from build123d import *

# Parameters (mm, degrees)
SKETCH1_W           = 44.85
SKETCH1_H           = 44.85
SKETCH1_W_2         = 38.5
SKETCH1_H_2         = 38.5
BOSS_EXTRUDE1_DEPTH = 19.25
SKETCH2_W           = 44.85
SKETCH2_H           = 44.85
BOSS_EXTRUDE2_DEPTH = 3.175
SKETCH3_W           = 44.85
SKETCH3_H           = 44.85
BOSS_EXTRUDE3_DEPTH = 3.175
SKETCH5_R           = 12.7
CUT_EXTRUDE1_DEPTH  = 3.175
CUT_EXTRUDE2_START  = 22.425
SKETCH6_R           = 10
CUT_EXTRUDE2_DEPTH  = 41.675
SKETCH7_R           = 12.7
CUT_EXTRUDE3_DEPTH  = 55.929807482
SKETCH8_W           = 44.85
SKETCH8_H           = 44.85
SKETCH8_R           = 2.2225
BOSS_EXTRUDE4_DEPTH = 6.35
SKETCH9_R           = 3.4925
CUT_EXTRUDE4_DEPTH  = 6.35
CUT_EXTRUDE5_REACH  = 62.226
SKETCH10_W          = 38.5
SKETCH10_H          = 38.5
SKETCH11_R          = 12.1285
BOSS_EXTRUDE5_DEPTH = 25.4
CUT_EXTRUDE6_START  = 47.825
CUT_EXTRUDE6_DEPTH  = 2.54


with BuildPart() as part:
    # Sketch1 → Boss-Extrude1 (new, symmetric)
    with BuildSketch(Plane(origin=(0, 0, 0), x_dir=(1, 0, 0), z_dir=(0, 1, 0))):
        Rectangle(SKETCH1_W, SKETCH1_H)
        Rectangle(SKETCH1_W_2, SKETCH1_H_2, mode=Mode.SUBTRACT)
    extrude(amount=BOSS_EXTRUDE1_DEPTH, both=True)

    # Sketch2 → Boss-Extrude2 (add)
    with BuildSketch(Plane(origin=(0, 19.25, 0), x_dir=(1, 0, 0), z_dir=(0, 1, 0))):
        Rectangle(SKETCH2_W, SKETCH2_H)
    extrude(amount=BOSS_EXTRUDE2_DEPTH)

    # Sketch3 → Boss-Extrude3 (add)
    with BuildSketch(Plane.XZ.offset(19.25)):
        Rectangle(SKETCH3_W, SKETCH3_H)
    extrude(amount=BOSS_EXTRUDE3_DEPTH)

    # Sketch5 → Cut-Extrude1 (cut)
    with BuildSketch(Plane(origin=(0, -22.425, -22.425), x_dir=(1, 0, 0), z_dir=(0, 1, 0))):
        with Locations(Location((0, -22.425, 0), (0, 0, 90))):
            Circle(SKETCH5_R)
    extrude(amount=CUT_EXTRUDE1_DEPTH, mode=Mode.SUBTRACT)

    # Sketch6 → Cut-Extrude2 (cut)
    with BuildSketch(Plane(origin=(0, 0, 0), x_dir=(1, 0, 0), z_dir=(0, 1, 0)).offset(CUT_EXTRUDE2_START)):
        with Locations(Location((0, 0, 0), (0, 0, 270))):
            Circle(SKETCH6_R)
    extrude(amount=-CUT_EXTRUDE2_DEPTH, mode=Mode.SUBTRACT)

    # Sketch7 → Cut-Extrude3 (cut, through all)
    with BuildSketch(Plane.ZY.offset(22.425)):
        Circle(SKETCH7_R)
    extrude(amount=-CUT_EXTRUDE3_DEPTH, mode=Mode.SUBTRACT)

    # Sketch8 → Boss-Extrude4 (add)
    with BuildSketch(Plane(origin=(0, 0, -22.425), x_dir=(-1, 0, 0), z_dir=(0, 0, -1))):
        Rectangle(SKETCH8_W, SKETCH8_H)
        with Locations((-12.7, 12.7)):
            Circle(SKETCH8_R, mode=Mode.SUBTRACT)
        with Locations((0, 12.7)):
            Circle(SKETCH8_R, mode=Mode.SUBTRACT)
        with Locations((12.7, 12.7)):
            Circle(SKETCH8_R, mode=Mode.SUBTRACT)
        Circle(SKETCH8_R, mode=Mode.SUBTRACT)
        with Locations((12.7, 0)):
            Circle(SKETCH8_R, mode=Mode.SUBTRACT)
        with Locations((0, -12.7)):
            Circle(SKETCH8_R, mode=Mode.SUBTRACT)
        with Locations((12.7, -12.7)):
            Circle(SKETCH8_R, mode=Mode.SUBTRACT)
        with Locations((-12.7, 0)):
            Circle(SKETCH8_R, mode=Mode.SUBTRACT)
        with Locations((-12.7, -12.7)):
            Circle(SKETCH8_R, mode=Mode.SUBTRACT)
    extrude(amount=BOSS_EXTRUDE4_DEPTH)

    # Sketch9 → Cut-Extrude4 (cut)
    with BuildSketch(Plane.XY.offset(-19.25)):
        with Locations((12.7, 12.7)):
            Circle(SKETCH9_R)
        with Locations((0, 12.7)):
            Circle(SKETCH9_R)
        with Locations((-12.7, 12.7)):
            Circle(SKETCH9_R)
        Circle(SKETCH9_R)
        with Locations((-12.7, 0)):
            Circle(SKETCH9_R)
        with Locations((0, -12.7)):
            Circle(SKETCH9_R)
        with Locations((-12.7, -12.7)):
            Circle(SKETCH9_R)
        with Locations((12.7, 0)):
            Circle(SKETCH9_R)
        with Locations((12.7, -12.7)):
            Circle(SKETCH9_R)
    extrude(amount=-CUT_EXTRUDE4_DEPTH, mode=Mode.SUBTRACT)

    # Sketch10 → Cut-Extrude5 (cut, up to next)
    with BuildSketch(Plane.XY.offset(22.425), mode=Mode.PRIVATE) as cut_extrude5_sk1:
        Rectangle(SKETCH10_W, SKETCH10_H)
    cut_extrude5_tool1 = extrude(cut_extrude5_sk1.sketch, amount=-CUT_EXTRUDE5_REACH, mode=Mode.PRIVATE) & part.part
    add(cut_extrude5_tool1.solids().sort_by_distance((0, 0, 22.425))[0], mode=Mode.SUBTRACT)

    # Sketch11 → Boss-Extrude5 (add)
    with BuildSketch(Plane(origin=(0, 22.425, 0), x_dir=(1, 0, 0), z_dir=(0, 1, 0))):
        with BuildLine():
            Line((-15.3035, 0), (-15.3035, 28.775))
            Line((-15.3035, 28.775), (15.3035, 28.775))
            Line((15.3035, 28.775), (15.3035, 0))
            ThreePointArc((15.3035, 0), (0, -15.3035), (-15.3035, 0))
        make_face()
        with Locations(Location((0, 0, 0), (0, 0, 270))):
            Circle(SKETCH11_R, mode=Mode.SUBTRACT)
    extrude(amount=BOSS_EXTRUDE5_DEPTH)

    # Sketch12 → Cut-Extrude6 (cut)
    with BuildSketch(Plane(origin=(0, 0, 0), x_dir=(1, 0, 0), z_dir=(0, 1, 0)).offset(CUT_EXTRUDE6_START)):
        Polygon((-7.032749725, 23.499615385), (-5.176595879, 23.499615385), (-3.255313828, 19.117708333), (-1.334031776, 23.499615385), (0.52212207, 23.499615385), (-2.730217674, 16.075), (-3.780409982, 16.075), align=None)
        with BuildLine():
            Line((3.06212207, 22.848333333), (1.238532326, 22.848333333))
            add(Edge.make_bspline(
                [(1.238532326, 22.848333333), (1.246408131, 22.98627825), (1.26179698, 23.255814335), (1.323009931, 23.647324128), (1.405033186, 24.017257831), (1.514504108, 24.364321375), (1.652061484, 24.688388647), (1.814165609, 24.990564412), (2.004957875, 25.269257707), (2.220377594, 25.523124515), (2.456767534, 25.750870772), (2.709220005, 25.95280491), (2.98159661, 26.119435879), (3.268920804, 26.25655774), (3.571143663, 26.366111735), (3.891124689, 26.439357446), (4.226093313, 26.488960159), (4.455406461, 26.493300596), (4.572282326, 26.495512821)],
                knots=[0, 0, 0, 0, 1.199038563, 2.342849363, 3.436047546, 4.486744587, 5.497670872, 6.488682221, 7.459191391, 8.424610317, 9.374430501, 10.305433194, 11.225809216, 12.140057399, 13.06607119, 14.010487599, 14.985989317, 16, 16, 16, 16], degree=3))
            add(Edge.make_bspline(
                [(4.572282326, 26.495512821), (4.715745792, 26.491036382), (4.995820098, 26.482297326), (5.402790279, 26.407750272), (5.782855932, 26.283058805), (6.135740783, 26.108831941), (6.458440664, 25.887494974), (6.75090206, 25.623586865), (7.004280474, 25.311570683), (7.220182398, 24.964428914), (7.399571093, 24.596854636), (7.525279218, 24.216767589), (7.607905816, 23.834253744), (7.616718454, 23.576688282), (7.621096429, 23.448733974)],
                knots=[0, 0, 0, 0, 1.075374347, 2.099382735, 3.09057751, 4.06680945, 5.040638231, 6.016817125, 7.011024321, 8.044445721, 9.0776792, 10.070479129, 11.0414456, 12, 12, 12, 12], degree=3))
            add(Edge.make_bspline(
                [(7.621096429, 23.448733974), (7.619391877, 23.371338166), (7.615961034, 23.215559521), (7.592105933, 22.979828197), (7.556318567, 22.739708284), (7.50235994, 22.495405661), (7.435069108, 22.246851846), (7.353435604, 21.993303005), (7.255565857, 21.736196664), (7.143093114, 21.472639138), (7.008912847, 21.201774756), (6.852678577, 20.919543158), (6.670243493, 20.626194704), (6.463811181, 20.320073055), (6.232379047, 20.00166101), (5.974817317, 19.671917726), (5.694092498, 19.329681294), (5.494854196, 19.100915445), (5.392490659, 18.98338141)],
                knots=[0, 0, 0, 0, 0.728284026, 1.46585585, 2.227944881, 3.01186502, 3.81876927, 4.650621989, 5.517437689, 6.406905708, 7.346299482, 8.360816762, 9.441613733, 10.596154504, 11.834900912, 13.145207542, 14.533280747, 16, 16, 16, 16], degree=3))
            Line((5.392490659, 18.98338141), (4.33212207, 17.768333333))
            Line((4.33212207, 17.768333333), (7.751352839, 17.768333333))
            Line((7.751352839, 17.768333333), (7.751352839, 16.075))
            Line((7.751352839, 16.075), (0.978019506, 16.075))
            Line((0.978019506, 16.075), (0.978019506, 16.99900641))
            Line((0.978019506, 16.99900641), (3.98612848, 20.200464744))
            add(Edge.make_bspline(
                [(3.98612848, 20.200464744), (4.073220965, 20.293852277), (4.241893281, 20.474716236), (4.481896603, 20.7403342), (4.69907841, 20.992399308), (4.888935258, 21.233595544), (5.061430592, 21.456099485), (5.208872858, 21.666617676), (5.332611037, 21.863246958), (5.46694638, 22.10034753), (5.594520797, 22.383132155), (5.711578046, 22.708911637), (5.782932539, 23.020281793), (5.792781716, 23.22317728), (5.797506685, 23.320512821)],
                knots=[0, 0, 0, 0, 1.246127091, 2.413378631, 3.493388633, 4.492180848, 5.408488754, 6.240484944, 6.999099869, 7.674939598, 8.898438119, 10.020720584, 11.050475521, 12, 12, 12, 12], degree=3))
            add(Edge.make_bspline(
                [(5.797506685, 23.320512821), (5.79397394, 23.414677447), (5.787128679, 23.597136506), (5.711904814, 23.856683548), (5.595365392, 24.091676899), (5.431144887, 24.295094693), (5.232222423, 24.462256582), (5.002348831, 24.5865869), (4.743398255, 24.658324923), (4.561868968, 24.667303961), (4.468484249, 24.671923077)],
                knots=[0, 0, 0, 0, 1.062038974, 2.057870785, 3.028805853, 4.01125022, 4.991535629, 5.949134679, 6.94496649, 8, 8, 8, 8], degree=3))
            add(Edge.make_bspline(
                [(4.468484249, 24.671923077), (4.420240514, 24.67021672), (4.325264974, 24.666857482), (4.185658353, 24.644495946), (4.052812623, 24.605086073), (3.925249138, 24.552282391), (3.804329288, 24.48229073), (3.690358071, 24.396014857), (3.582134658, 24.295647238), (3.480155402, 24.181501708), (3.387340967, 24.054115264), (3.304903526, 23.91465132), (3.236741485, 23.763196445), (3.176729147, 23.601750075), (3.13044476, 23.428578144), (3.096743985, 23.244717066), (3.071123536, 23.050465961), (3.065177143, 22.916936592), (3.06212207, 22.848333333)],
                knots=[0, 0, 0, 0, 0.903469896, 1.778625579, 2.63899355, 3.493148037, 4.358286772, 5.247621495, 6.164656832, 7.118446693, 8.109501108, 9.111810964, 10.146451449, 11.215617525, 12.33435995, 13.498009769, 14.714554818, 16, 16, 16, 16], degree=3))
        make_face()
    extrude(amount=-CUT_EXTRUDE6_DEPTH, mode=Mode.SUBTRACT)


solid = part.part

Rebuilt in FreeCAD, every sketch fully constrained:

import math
import FreeCAD as App
import Part
import Sketcher
from FreeCAD import Vector
Q = App.Units.Quantity

doc = App.newDocument("Part")
body = doc.addObject("PartDesign::Body", "Body")

# Sketch on XZ plane
sketch1 = body.newObject("Sketcher::SketchObject", "Sketch")
sketch1.AttachmentSupport = (doc.getObject("XZ_Plane"), [""])
sketch1.MapMode = "FlatFace"
sketch1.addGeometry(Part.LineSegment(Vector(-22.425, -22.425, 0), Vector(-22.425, 22.425, 0)), False)
sketch1.addGeometry(Part.LineSegment(Vector(-22.425, 22.425, 0), Vector(22.425, 22.425, 0)), False)
sketch1.addGeometry(Part.LineSegment(Vector(22.425, 22.425, 0), Vector(22.425, -22.425, 0)), False)
sketch1.addGeometry(Part.LineSegment(Vector(22.425, -22.425, 0), Vector(-22.425, -22.425, 0)), False)
sketch1.addGeometry(Part.LineSegment(Vector(19.25, 19.25, 0), Vector(-19.25, 19.25, 0)), False)
sketch1.addGeometry(Part.LineSegment(Vector(-19.25, 19.25, 0), Vector(-19.25, -19.25, 0)), False)
sketch1.addGeometry(Part.LineSegment(Vector(-19.25, -19.25, 0), Vector(19.25, -19.25, 0)), False)
sketch1.addGeometry(Part.LineSegment(Vector(19.25, -19.25, 0), Vector(19.25, 19.25, 0)), False)
sketch1.addConstraint(Sketcher.Constraint("Coincident", 0, 2, 1, 1))
sketch1.addConstraint(Sketcher.Constraint("Coincident", 1, 2, 2, 1))
sketch1.addConstraint(Sketcher.Constraint("Coincident", 2, 2, 3, 1))
sketch1.addConstraint(Sketcher.Constraint("Coincident", 3, 2, 0, 1))
sketch1.addConstraint(Sketcher.Constraint("Coincident", 4, 2, 5, 1))
sketch1.addConstraint(Sketcher.Constraint("Coincident", 5, 2, 6, 1))
sketch1.addConstraint(Sketcher.Constraint("Coincident", 6, 2, 7, 1))
sketch1.addConstraint(Sketcher.Constraint("Coincident", 7, 2, 4, 1))
sketch1.addConstraint(Sketcher.Constraint("Vertical", 0))
sketch1.addConstraint(Sketcher.Constraint("Horizontal", 1))
sketch1.addConstraint(Sketcher.Constraint("Vertical", 2))
sketch1.addConstraint(Sketcher.Constraint("Horizontal", 3))
sketch1.addConstraint(Sketcher.Constraint("Horizontal", 4))
sketch1.addConstraint(Sketcher.Constraint("Vertical", 5))
sketch1.addConstraint(Sketcher.Constraint("Horizontal", 6))
sketch1.addConstraint(Sketcher.Constraint("Vertical", 7))
sketch1.addConstraint(Sketcher.Constraint("Symmetric", 0, 2, 2, 2, -1, 1))
sketch1.addConstraint(Sketcher.Constraint("Symmetric", 4, 2, 6, 2, -1, 1))
sketch1.addConstraint(Sketcher.Constraint("Equal", 3, 0))
sketch1.addConstraint(Sketcher.Constraint("Equal", 6, 5))
sketch1.addConstraint(Sketcher.Constraint("DistanceX", 0, 2, 4, 2, Q("0.125 in")))
sketch1.addConstraint(Sketcher.Constraint("DistanceX", 1, 1, 1, 2, 44.85))
pad1 = body.newObject("PartDesign::Pad", "Pad")
pad1.Profile = sketch1
pad1.Length = 38.5
pad1.Midplane = True

# Sketch on XZ plane
sketch2 = body.newObject("Sketcher::SketchObject", "Sketch001")
sketch2.AttachmentSupport = (doc.getObject("XZ_Plane"), [""])
sketch2.MapMode = "FlatFace"
sketch2.AttachmentOffset = App.Placement(Vector(0, 0, -19.25), App.Rotation())
sketch2.addGeometry(Part.LineSegment(Vector(-22.425, -22.425, 0), Vector(-22.425, 22.425, 0)), False)
sketch2.addGeometry(Part.LineSegment(Vector(-22.425, 22.425, 0), Vector(22.425, 22.425, 0)), False)
sketch2.addGeometry(Part.LineSegment(Vector(22.425, 22.425, 0), Vector(22.425, -22.425, 0)), False)
sketch2.addGeometry(Part.LineSegment(Vector(22.425, -22.425, 0), Vector(-22.425, -22.425, 0)), False)
sketch2.addConstraint(Sketcher.Constraint("Coincident", 0, 2, 1, 1))
sketch2.addConstraint(Sketcher.Constraint("Coincident", 1, 2, 2, 1))
sketch2.addConstraint(Sketcher.Constraint("Coincident", 2, 2, 3, 1))
sketch2.addConstraint(Sketcher.Constraint("Coincident", 3, 2, 0, 1))
sketch2.addConstraint(Sketcher.Constraint("Vertical", 0))
sketch2.addConstraint(Sketcher.Constraint("Horizontal", 1))
sketch2.addConstraint(Sketcher.Constraint("Vertical", 2))
sketch2.addConstraint(Sketcher.Constraint("Horizontal", 3))
sketch2.addConstraint(Sketcher.Constraint("Symmetric", 0, 2, 2, 2, -1, 1))
sketch2.addConstraint(Sketcher.Constraint("Equal", 3, 0))
sketch2.addConstraint(Sketcher.Constraint("DistanceX", 1, 1, 1, 2, 44.85))
pad2 = body.newObject("PartDesign::Pad", "Pad001")
pad2.Profile = sketch2
pad2.Length = Q("0.125 in")
pad2.Reversed = True

# Sketch on XZ plane
sketch3 = body.newObject("Sketcher::SketchObject", "Sketch002")
sketch3.AttachmentSupport = (doc.getObject("XZ_Plane"), [""])
sketch3.MapMode = "FlatFace"
sketch3.AttachmentOffset = App.Placement(Vector(0, 0, 19.25), App.Rotation())
sketch3.addGeometry(Part.LineSegment(Vector(-22.425, 22.425, 0), Vector(-22.425, -22.425, 0)), False)
sketch3.addGeometry(Part.LineSegment(Vector(-22.425, -22.425, 0), Vector(22.425, -22.425, 0)), False)
sketch3.addGeometry(Part.LineSegment(Vector(22.425, -22.425, 0), Vector(22.425, 22.425, 0)), False)
sketch3.addGeometry(Part.LineSegment(Vector(22.425, 22.425, 0), Vector(-22.425, 22.425, 0)), False)
sketch3.addConstraint(Sketcher.Constraint("Coincident", 0, 2, 1, 1))
sketch3.addConstraint(Sketcher.Constraint("Coincident", 1, 2, 2, 1))
sketch3.addConstraint(Sketcher.Constraint("Coincident", 2, 2, 3, 1))
sketch3.addConstraint(Sketcher.Constraint("Coincident", 3, 2, 0, 1))
sketch3.addConstraint(Sketcher.Constraint("Vertical", 0))
sketch3.addConstraint(Sketcher.Constraint("Horizontal", 1))
sketch3.addConstraint(Sketcher.Constraint("Vertical", 2))
sketch3.addConstraint(Sketcher.Constraint("Horizontal", 3))
sketch3.addConstraint(Sketcher.Constraint("Symmetric", 0, 2, 2, 2, -1, 1))
sketch3.addConstraint(Sketcher.Constraint("Equal", 3, 0))
sketch3.addConstraint(Sketcher.Constraint("DistanceX", 1, 1, 1, 2, 44.85))
pad3 = body.newObject("PartDesign::Pad", "Pad002")
pad3.Profile = sketch3
pad3.Length = Q("0.125 in")

# Sketch on XZ plane
sketch4 = body.newObject("Sketcher::SketchObject", "Sketch003")
sketch4.AttachmentSupport = (doc.getObject("XZ_Plane"), [""])
sketch4.MapMode = "FlatFace"
sketch4.AttachmentOffset = App.Placement(Vector(0, 0, 22.425), App.Rotation())
sketch4.addGeometry(Part.Circle(Vector(0, 0, 0), Vector(0, 0, 1), 12.7), False)
sketch4.addConstraint(Sketcher.Constraint("Coincident", 0, 3, -1, 1))
sketch4.addConstraint(Sketcher.Constraint("Diameter", 0, Q("1 in")))
pocket1 = body.newObject("PartDesign::Pocket", "Pocket")
pocket1.Profile = sketch4
pocket1.Length = Q("0.125 in")

# Sketch on XZ plane
sketch5 = body.newObject("Sketcher::SketchObject", "Sketch004")
sketch5.AttachmentSupport = (doc.getObject("XZ_Plane"), [""])
sketch5.MapMode = "FlatFace"
sketch5.AttachmentOffset = App.Placement(Vector(0, 0, -22.425), App.Rotation())
sketch5.addGeometry(Part.Circle(Vector(0, 0, 0), Vector(0, 0, 1), 10), False)
sketch5.addConstraint(Sketcher.Constraint("Coincident", 0, 3, -1, 1))
sketch5.addConstraint(Sketcher.Constraint("Diameter", 0, 20.0))
pocket2 = body.newObject("PartDesign::Pocket", "Pocket001")
pocket2.Profile = sketch5
pocket2.Length = 41.675
pocket2.Reversed = True

# Sketch on YZ plane
sketch6 = body.newObject("Sketcher::SketchObject", "Sketch005")
sketch6.AttachmentSupport = (doc.getObject("YZ_Plane"), [""])
sketch6.MapMode = "FlatFace"
sketch6.AttachmentOffset = App.Placement(Vector(0, 0, -22.425), App.Rotation())
sketch6.addGeometry(Part.Circle(Vector(0, 0, 0), Vector(0, 0, 1), 12.7), False)
sketch6.addConstraint(Sketcher.Constraint("Coincident", 0, 3, -1, 1))
sketch6.addConstraint(Sketcher.Constraint("Diameter", 0, Q("1 in")))
pocket3 = body.newObject("PartDesign::Pocket", "Pocket002")
pocket3.Profile = sketch6
pocket3.Type = "ThroughAll"
pocket3.Reversed = True

# Sketch on XY plane
sketch7 = body.newObject("Sketcher::SketchObject", "Sketch006")
sketch7.AttachmentSupport = (doc.getObject("XY_Plane"), [""])
sketch7.MapMode = "FlatFace"
sketch7.AttachmentOffset = App.Placement(Vector(0, 0, -22.425), App.Rotation())
sketch7.addGeometry(Part.LineSegment(Vector(22.425, 22.425, 0), Vector(22.425, -22.425, 0)), False)
sketch7.addGeometry(Part.LineSegment(Vector(22.425, -22.425, 0), Vector(-22.425, -22.425, 0)), False)
sketch7.addGeometry(Part.LineSegment(Vector(-22.425, -22.425, 0), Vector(-22.425, 22.425, 0)), False)
sketch7.addGeometry(Part.LineSegment(Vector(-22.425, 22.425, 0), Vector(22.425, 22.425, 0)), False)
sketch7.addGeometry(Part.Circle(Vector(12.7, -12.7, 0), Vector(0, 0, 1), 2.2225), False)
sketch7.addGeometry(Part.Circle(Vector(0, -12.7, 0), Vector(0, 0, 1), 2.2225), False)
sketch7.addGeometry(Part.Circle(Vector(-12.7, -12.7, 0), Vector(0, 0, 1), 2.2225), False)
sketch7.addGeometry(Part.Circle(Vector(12.7, 0, 0), Vector(0, 0, 1), 2.2225), False)
sketch7.addGeometry(Part.Circle(Vector(12.7, 12.7, 0), Vector(0, 0, 1), 2.2225), False)
sketch7.addGeometry(Part.Circle(Vector(0, 0, 0), Vector(0, 0, 1), 2.2225), False)
sketch7.addGeometry(Part.Circle(Vector(-12.7, 0, 0), Vector(0, 0, 1), 2.2225), False)
sketch7.addGeometry(Part.Circle(Vector(0, 12.7, 0), Vector(0, 0, 1), 2.2225), False)
sketch7.addGeometry(Part.Circle(Vector(-12.7, 12.7, 0), Vector(0, 0, 1), 2.2225), False)
sketch7.addConstraint(Sketcher.Constraint("Coincident", 0, 2, 1, 1))
sketch7.addConstraint(Sketcher.Constraint("Coincident", 1, 2, 2, 1))
sketch7.addConstraint(Sketcher.Constraint("Coincident", 2, 2, 3, 1))
sketch7.addConstraint(Sketcher.Constraint("Coincident", 3, 2, 0, 1))
sketch7.addConstraint(Sketcher.Constraint("Vertical", 0))
sketch7.addConstraint(Sketcher.Constraint("Horizontal", 1))
sketch7.addConstraint(Sketcher.Constraint("Vertical", 2))
sketch7.addConstraint(Sketcher.Constraint("Horizontal", 3))
sketch7.addConstraint(Sketcher.Constraint("Coincident", 9, 3, -1, 1))
sketch7.addConstraint(Sketcher.Constraint("Equal", 4, 5))
sketch7.addConstraint(Sketcher.Constraint("Equal", 5, 6))
sketch7.addConstraint(Sketcher.Constraint("Equal", 6, 7))
sketch7.addConstraint(Sketcher.Constraint("Equal", 7, 8))
sketch7.addConstraint(Sketcher.Constraint("Equal", 8, 9))
sketch7.addConstraint(Sketcher.Constraint("Equal", 9, 10))
sketch7.addConstraint(Sketcher.Constraint("Equal", 10, 11))
sketch7.addConstraint(Sketcher.Constraint("Equal", 11, 12))
sketch7.addConstraint(Sketcher.Constraint("Symmetric", 6, 3, 8, 3, -1, 1))
sketch7.addConstraint(Sketcher.Constraint("Symmetric", 7, 3, 10, 3, -1, 1))
sketch7.addConstraint(Sketcher.Constraint("Symmetric", 5, 3, 11, 3, -1, 1))
sketch7.addConstraint(Sketcher.Constraint("Symmetric", 4, 3, 12, 3, -1, 1))
sketch7.addConstraint(Sketcher.Constraint("Symmetric", 0, 2, 2, 2, -1, 1))
sketch7.addConstraint(Sketcher.Constraint("Symmetric", 4, 3, 6, 3, -2))
sketch7.addConstraint(Sketcher.Constraint("PointOnObject", 5, 3, -2))
sketch7.addConstraint(Sketcher.Constraint("PointOnObject", 7, 3, -1))
sketch7.addConstraint(Sketcher.Constraint("Horizontal", 4, 3, 5, 3))
sketch7.addConstraint(Sketcher.Constraint("Vertical", 4, 3, 7, 3))
sketch7.addConstraint(Sketcher.Constraint("Equal", 3, 0))
sketch7.addConstraint(Sketcher.Constraint("Diameter", 4, Q("0.175 in")))
sketch7.addConstraint(Sketcher.Constraint("DistanceX", 6, 3, 4, 3, Q("1 in")))
sketch7.addConstraint(Sketcher.Constraint("DistanceY", 4, 3, 8, 3, Q("1 in")))
sketch7.addConstraint(Sketcher.Constraint("DistanceX", 1, 2, 1, 1, 44.85))
pad4 = body.newObject("PartDesign::Pad", "Pad003")
pad4.Profile = sketch7
pad4.Length = Q("0.25 in")
pad4.Reversed = True

# Sketch on XY plane
sketch8 = body.newObject("Sketcher::SketchObject", "Sketch007")
sketch8.AttachmentSupport = (doc.getObject("XY_Plane"), [""])
sketch8.MapMode = "FlatFace"
sketch8.AttachmentOffset = App.Placement(Vector(0, 0, -19.25), App.Rotation())
sketch8.addGeometry(Part.Circle(Vector(12.7, 12.7, 0), Vector(0, 0, 1), 3.4925), False)
sketch8.addGeometry(Part.Circle(Vector(0, 12.7, 0), Vector(0, 0, 1), 3.4925), False)
sketch8.addGeometry(Part.Circle(Vector(-12.7, 12.7, 0), Vector(0, 0, 1), 3.4925), False)
sketch8.addGeometry(Part.Circle(Vector(0, 0, 0), Vector(0, 0, 1), 3.4925), False)
sketch8.addGeometry(Part.Circle(Vector(-12.7, 0, 0), Vector(0, 0, 1), 3.4925), False)
sketch8.addGeometry(Part.Circle(Vector(0, -12.7, 0), Vector(0, 0, 1), 3.4925), False)
sketch8.addGeometry(Part.Circle(Vector(-12.7, -12.7, 0), Vector(0, 0, 1), 3.4925), False)
sketch8.addGeometry(Part.Circle(Vector(12.7, 0, 0), Vector(0, 0, 1), 3.4925), False)
sketch8.addGeometry(Part.Circle(Vector(12.7, -12.7, 0), Vector(0, 0, 1), 3.4925), False)
sketch8.addConstraint(Sketcher.Constraint("Coincident", 3, 3, -1, 1))
sketch8.addConstraint(Sketcher.Constraint("Equal", 0, 1))
sketch8.addConstraint(Sketcher.Constraint("Equal", 1, 2))
sketch8.addConstraint(Sketcher.Constraint("Equal", 2, 3))
sketch8.addConstraint(Sketcher.Constraint("Equal", 3, 4))
sketch8.addConstraint(Sketcher.Constraint("Equal", 4, 5))
sketch8.addConstraint(Sketcher.Constraint("Equal", 5, 6))
sketch8.addConstraint(Sketcher.Constraint("Equal", 6, 7))
sketch8.addConstraint(Sketcher.Constraint("Equal", 7, 8))
sketch8.addConstraint(Sketcher.Constraint("Symmetric", 1, 3, 5, 3, -1, 1))
sketch8.addConstraint(Sketcher.Constraint("Symmetric", 0, 3, 6, 3, -1, 1))
sketch8.addConstraint(Sketcher.Constraint("Symmetric", 4, 3, 7, 3, -1, 1))
sketch8.addConstraint(Sketcher.Constraint("Symmetric", 2, 3, 8, 3, -1, 1))
sketch8.addConstraint(Sketcher.Constraint("Symmetric", 0, 3, 2, 3, -2))
sketch8.addConstraint(Sketcher.Constraint("PointOnObject", 1, 3, -2))
sketch8.addConstraint(Sketcher.Constraint("PointOnObject", 4, 3, -1))
sketch8.addConstraint(Sketcher.Constraint("Horizontal", 0, 3, 1, 3))
sketch8.addConstraint(Sketcher.Constraint("Vertical", 2, 3, 4, 3))
sketch8.addConstraint(Sketcher.Constraint("Diameter", 0, Q("0.275 in")))
sketch8.addConstraint(Sketcher.Constraint("DistanceX", 2, 3, 0, 3, Q("1 in")))
sketch8.addConstraint(Sketcher.Constraint("DistanceY", 5, 3, 1, 3, Q("1 in")))
pocket4 = body.newObject("PartDesign::Pocket", "Pocket003")
pocket4.Profile = sketch8
pocket4.Length = Q("0.25 in")

# Sketch on XY plane
sketch9 = body.newObject("Sketcher::SketchObject", "Sketch008")
sketch9.AttachmentSupport = (doc.getObject("XY_Plane"), [""])
sketch9.MapMode = "FlatFace"
sketch9.AttachmentOffset = App.Placement(Vector(0, 0, 22.425), App.Rotation())
sketch9.addGeometry(Part.LineSegment(Vector(-19.25, 19.25, 0), Vector(-19.25, -19.25, 0)), False)
sketch9.addGeometry(Part.LineSegment(Vector(-19.25, -19.25, 0), Vector(19.25, -19.25, 0)), False)
sketch9.addGeometry(Part.LineSegment(Vector(19.25, -19.25, 0), Vector(19.25, 19.25, 0)), False)
sketch9.addGeometry(Part.LineSegment(Vector(19.25, 19.25, 0), Vector(-19.25, 19.25, 0)), False)
sketch9.addConstraint(Sketcher.Constraint("Coincident", 0, 2, 1, 1))
sketch9.addConstraint(Sketcher.Constraint("Coincident", 1, 2, 2, 1))
sketch9.addConstraint(Sketcher.Constraint("Coincident", 2, 2, 3, 1))
sketch9.addConstraint(Sketcher.Constraint("Coincident", 3, 2, 0, 1))
sketch9.addConstraint(Sketcher.Constraint("Vertical", 0))
sketch9.addConstraint(Sketcher.Constraint("Horizontal", 1))
sketch9.addConstraint(Sketcher.Constraint("Vertical", 2))
sketch9.addConstraint(Sketcher.Constraint("Horizontal", 3))
sketch9.addConstraint(Sketcher.Constraint("Symmetric", 0, 2, 2, 2, -1, 1))
sketch9.addConstraint(Sketcher.Constraint("Equal", 3, 0))
sketch9.addConstraint(Sketcher.Constraint("DistanceX", 1, 1, 1, 2, 38.5))
pocket5 = body.newObject("PartDesign::Pocket", "Pocket004")
pocket5.Profile = sketch9
pocket5.Type = "UpToFirst"

# Sketch on XZ plane
sketch10 = body.newObject("Sketcher::SketchObject", "Sketch009")
sketch10.AttachmentSupport = (doc.getObject("XZ_Plane"), [""])
sketch10.MapMode = "FlatFace"
sketch10.AttachmentOffset = App.Placement(Vector(0, 0, -22.425), App.Rotation())
sketch10.addGeometry(Part.LineSegment(Vector(-15.3035, -28.775, 0), Vector(-15.3035, 0, 0)), False)
sketch10.addGeometry(Part.ArcOfCircle(Part.Circle(Vector(0, 0, 0), Vector(0, 0, 1), 15.3035), math.radians(0), math.radians(180)), False)
sketch10.addGeometry(Part.LineSegment(Vector(15.3035, 0, 0), Vector(15.3035, -28.775, 0)), False)
sketch10.addGeometry(Part.LineSegment(Vector(15.3035, -28.775, 0), Vector(-15.3035, -28.775, 0)), False)
sketch10.addGeometry(Part.Circle(Vector(0, 0, 0), Vector(0, 0, 1), 12.1285), False)
sketch10.addConstraint(Sketcher.Constraint("Tangent", 0, 2, 1, 2))
sketch10.addConstraint(Sketcher.Constraint("Tangent", 1, 1, 2, 1))
sketch10.addConstraint(Sketcher.Constraint("Coincident", 2, 2, 3, 1))
sketch10.addConstraint(Sketcher.Constraint("Coincident", 3, 2, 0, 1))
sketch10.addConstraint(Sketcher.Constraint("Vertical", 0))
sketch10.addConstraint(Sketcher.Constraint("Vertical", 2))
sketch10.addConstraint(Sketcher.Constraint("Horizontal", 3))
sketch10.addConstraint(Sketcher.Constraint("Coincident", 1, 3, -1, 1))
sketch10.addConstraint(Sketcher.Constraint("Coincident", 4, 3, -1, 1))
sketch10.addConstraint(Sketcher.Constraint("Diameter", 4, Q("0.955 in")))
sketch10.addConstraint(Sketcher.Constraint("Radius", 1, Q("0.6025 in")))
sketch10.addConstraint(Sketcher.Constraint("DistanceY", 0, 1, 0, 2, 28.775))
pad5 = body.newObject("PartDesign::Pad", "Pad004")
pad5.Profile = sketch10
pad5.Length = Q("1 in")
pad5.Reversed = True

# Sketch on XZ plane
sketch11 = body.newObject("Sketcher::SketchObject", "Sketch010")
sketch11.AttachmentSupport = (doc.getObject("XZ_Plane"), [""])
sketch11.MapMode = "FlatFace"
sketch11.AttachmentOffset = App.Placement(Vector(0, 0, -47.825), App.Rotation())
sketch11.addGeometry(Part.LineSegment(Vector(-5.176596, -23.499615, 0), Vector(-7.03275, -23.499615, 0)), False)
sketch11.addGeometry(Part.LineSegment(Vector(-7.03275, -23.499615, 0), Vector(-3.78041, -16.075, 0)), False)
sketch11.addGeometry(Part.LineSegment(Vector(-3.78041, -16.075, 0), Vector(-2.730218, -16.075, 0)), False)
sketch11.addGeometry(Part.LineSegment(Vector(-2.730218, -16.075, 0), Vector(0.522122, -23.499615, 0)), False)
sketch11.addGeometry(Part.LineSegment(Vector(0.522122, -23.499615, 0), Vector(-1.334032, -23.499615, 0)), False)
sketch11.addGeometry(Part.LineSegment(Vector(-1.334032, -23.499615, 0), Vector(-3.255314, -19.117708, 0)), False)
sketch11.addGeometry(Part.LineSegment(Vector(-3.255314, -19.117708, 0), Vector(-5.176596, -23.499615, 0)), False)
sketch11.addGeometry(Part.LineSegment(Vector(1.238532, -22.848333, 0), Vector(3.062122, -22.848333, 0)), False)
sketch11.addGeometry(Part.BSplineCurve([Vector(4.468484, -24.671923, 0), Vector(4.420241, -24.670217, 0), Vector(4.325265, -24.666857, 0), Vector(4.185658, -24.644496, 0), Vector(4.052813, -24.605086, 0), Vector(3.925249, -24.552282, 0), Vector(3.804329, -24.482291, 0), Vector(3.690358, -24.396015, 0), Vector(3.582135, -24.295647, 0), Vector(3.480155, -24.181502, 0), Vector(3.387341, -24.054115, 0), Vector(3.304904, -23.914651, 0), Vector(3.236741, -23.763196, 0), Vector(3.176729, -23.60175, 0), Vector(3.130445, -23.428578, 0), Vector(3.096744, -23.244717, 0), Vector(3.071124, -23.050466, 0), Vector(3.065177, -22.916937, 0), Vector(3.062122, -22.848333, 0)], [4, 1, 1, 1, 1, 1, 1, 1, 1, 1, 1, 1, 1, 1, 1, 1, 4], [0, 0.903469896, 1.778625579, 2.63899355, 3.493148037, 4.358286772, 5.247621495, 6.164656832, 7.118446693, 8.109501108, 9.111810964, 10.146451449, 11.215617525, 12.33435995, 13.498009769, 14.714554818, 16], False, 3, [1, 1, 1, 1, 1, 1, 1, 1, 1, 1, 1, 1, 1, 1, 1, 1, 1, 1, 1], False), False)
sketch11.addGeometry(Part.BSplineCurve([Vector(5.797507, -23.320513, 0), Vector(5.793974, -23.414677, 0), Vector(5.787129, -23.597137, 0), Vector(5.711905, -23.856684, 0), Vector(5.595365, -24.091677, 0), Vector(5.431145, -24.295095, 0), Vector(5.232222, -24.462257, 0), Vector(5.002349, -24.586587, 0), Vector(4.743398, -24.658325, 0), Vector(4.561869, -24.667304, 0), Vector(4.468484, -24.671923, 0)], [4, 1, 1, 1, 1, 1, 1, 1, 4], [0, 1.062038974, 2.057870785, 3.028805853, 4.01125022, 4.991535629, 5.949134679, 6.94496649, 8], False, 3, [1, 1, 1, 1, 1, 1, 1, 1, 1, 1, 1], False), False)
sketch11.addGeometry(Part.BSplineCurve([Vector(3.986128, -20.200465, 0), Vector(4.073221, -20.293852, 0), Vector(4.241893, -20.474716, 0), Vector(4.481897, -20.740334, 0), Vector(4.699078, -20.992399, 0), Vector(4.888935, -21.233596, 0), Vector(5.061431, -21.456099, 0), Vector(5.208873, -21.666618, 0), Vector(5.332611, -21.863247, 0), Vector(5.466946, -22.100348, 0), Vector(5.594521, -22.383132, 0), Vector(5.711578, -22.708912, 0), Vector(5.782933, -23.020282, 0), Vector(5.792782, -23.223177, 0), Vector(5.797507, -23.320513, 0)], [4, 1, 1, 1, 1, 1, 1, 1, 1, 1, 1, 1, 4], [0, 1.246127091, 2.413378631, 3.493388633, 4.492180848, 5.408488754, 6.240484944, 6.999099869, 7.674939598, 8.898438119, 10.020720584, 11.050475521, 12], False, 3, [1, 1, 1, 1, 1, 1, 1, 1, 1, 1, 1, 1, 1, 1, 1], False), False)
sketch11.addGeometry(Part.LineSegment(Vector(3.986128, -20.200465, 0), Vector(0.97802, -16.999006, 0)), False)
sketch11.addGeometry(Part.LineSegment(Vector(0.97802, -16.999006, 0), Vector(0.97802, -16.075, 0)), False)
sketch11.addGeometry(Part.LineSegment(Vector(0.97802, -16.075, 0), Vector(7.751353, -16.075, 0)), False)
sketch11.addGeometry(Part.LineSegment(Vector(7.751353, -16.075, 0), Vector(7.751353, -17.768333, 0)), False)
sketch11.addGeometry(Part.LineSegment(Vector(7.751353, -17.768333, 0), Vector(4.332122, -17.768333, 0)), False)
sketch11.addGeometry(Part.LineSegment(Vector(4.332122, -17.768333, 0), Vector(5.392491, -18.983381, 0)), False)
sketch11.addGeometry(Part.BSplineCurve([Vector(7.621096, -23.448734, 0), Vector(7.619392, -23.371338, 0), Vector(7.615961, -23.21556, 0), Vector(7.592106, -22.979828, 0), Vector(7.556319, -22.739708, 0), Vector(7.50236, -22.495406, 0), Vector(7.435069, -22.246852, 0), Vector(7.353436, -21.993303, 0), Vector(7.255566, -21.736197, 0), Vector(7.143093, -21.472639, 0), Vector(7.008913, -21.201775, 0), Vector(6.852679, -20.919543, 0), Vector(6.670243, -20.626195, 0), Vector(6.463811, -20.320073, 0), Vector(6.232379, -20.001661, 0), Vector(5.974817, -19.671918, 0), Vector(5.694092, -19.329681, 0), Vector(5.494854, -19.100915, 0), Vector(5.392491, -18.983381, 0)], [4, 1, 1, 1, 1, 1, 1, 1, 1, 1, 1, 1, 1, 1, 1, 1, 4], [0, 0.728284026, 1.46585585, 2.227944881, 3.01186502, 3.81876927, 4.650621989, 5.517437689, 6.406905708, 7.346299482, 8.360816762, 9.441613733, 10.596154504, 11.834900912, 13.145207542, 14.533280747, 16], False, 3, [1, 1, 1, 1, 1, 1, 1, 1, 1, 1, 1, 1, 1, 1, 1, 1, 1, 1, 1], False), False)
sketch11.addGeometry(Part.BSplineCurve([Vector(4.572282, -26.495513, 0), Vector(4.715746, -26.491036, 0), Vector(4.99582, -26.482297, 0), Vector(5.40279, -26.40775, 0), Vector(5.782856, -26.283059, 0), Vector(6.135741, -26.108832, 0), Vector(6.458441, -25.887495, 0), Vector(6.750902, -25.623587, 0), Vector(7.00428, -25.311571, 0), Vector(7.220182, -24.964429, 0), Vector(7.399571, -24.596855, 0), Vector(7.525279, -24.216768, 0), Vector(7.607906, -23.834254, 0), Vector(7.616718, -23.576688, 0), Vector(7.621096, -23.448734, 0)], [4, 1, 1, 1, 1, 1, 1, 1, 1, 1, 1, 1, 4], [0, 1.075374347, 2.099382735, 3.09057751, 4.06680945, 5.040638231, 6.016817125, 7.011024321, 8.044445721, 9.0776792, 10.070479129, 11.0414456, 12], False, 3, [1, 1, 1, 1, 1, 1, 1, 1, 1, 1, 1, 1, 1, 1, 1], False), False)
sketch11.addGeometry(Part.BSplineCurve([Vector(1.238532, -22.848333, 0), Vector(1.246408, -22.986278, 0), Vector(1.261797, -23.255814, 0), Vector(1.32301, -23.647324, 0), Vector(1.405033, -24.017258, 0), Vector(1.514504, -24.364321, 0), Vector(1.652061, -24.688389, 0), Vector(1.814166, -24.990564, 0), Vector(2.004958, -25.269258, 0), Vector(2.220378, -25.523125, 0), Vector(2.456768, -25.750871, 0), Vector(2.70922, -25.952805, 0), Vector(2.981597, -26.119436, 0), Vector(3.268921, -26.256558, 0), Vector(3.571144, -26.366112, 0), Vector(3.891125, -26.439357, 0), Vector(4.226093, -26.48896, 0), Vector(4.455406, -26.493301, 0), Vector(4.572282, -26.495513, 0)], [4, 1, 1, 1, 1, 1, 1, 1, 1, 1, 1, 1, 1, 1, 1, 1, 4], [0, 1.199038563, 2.342849363, 3.436047546, 4.486744587, 5.497670872, 6.488682221, 7.459191391, 8.424610317, 9.374430501, 10.305433194, 11.225809216, 12.140057399, 13.06607119, 14.010487599, 14.985989317, 16], False, 3, [1, 1, 1, 1, 1, 1, 1, 1, 1, 1, 1, 1, 1, 1, 1, 1, 1, 1, 1], False), False)
sketch11.addConstraint(Sketcher.Constraint("Block", 8))
sketch11.addConstraint(Sketcher.Constraint("Block", 9))
sketch11.addConstraint(Sketcher.Constraint("Block", 10))
sketch11.addConstraint(Sketcher.Constraint("Block", 17))
sketch11.addConstraint(Sketcher.Constraint("Block", 18))
sketch11.addConstraint(Sketcher.Constraint("Block", 19))
sketch11.addConstraint(Sketcher.Constraint("Coincident", 0, 2, 1, 1))
sketch11.addConstraint(Sketcher.Constraint("Coincident", 1, 2, 2, 1))
sketch11.addConstraint(Sketcher.Constraint("Coincident", 2, 2, 3, 1))
sketch11.addConstraint(Sketcher.Constraint("Coincident", 3, 2, 4, 1))
sketch11.addConstraint(Sketcher.Constraint("Coincident", 4, 2, 5, 1))
sketch11.addConstraint(Sketcher.Constraint("Coincident", 5, 2, 6, 1))
sketch11.addConstraint(Sketcher.Constraint("Coincident", 6, 2, 0, 1))
sketch11.addConstraint(Sketcher.Constraint("Coincident", 7, 2, 8, 2))
sketch11.addConstraint(Sketcher.Constraint("Coincident", 10, 1, 11, 1))
sketch11.addConstraint(Sketcher.Constraint("Coincident", 11, 2, 12, 1))
sketch11.addConstraint(Sketcher.Constraint("Coincident", 12, 2, 13, 1))
sketch11.addConstraint(Sketcher.Constraint("Coincident", 13, 2, 14, 1))
sketch11.addConstraint(Sketcher.Constraint("Coincident", 14, 2, 15, 1))
sketch11.addConstraint(Sketcher.Constraint("Coincident", 15, 2, 16, 1))
sketch11.addConstraint(Sketcher.Constraint("Coincident", 16, 2, 17, 2))
sketch11.addConstraint(Sketcher.Constraint("Coincident", 19, 1, 7, 1))
sketch11.addConstraint(Sketcher.Constraint("Horizontal", 0))
sketch11.addConstraint(Sketcher.Constraint("Horizontal", 2))
sketch11.addConstraint(Sketcher.Constraint("Horizontal", 4))
sketch11.addConstraint(Sketcher.Constraint("Vertical", 12))
sketch11.addConstraint(Sketcher.Constraint("Horizontal", 13))
sketch11.addConstraint(Sketcher.Constraint("Vertical", 14))
sketch11.addConstraint(Sketcher.Constraint("Horizontal", 15))
sketch11.addConstraint(Sketcher.Constraint("Horizontal", 0, 2, 3, 2))
sketch11.addConstraint(Sketcher.Constraint("Horizontal", 2, 2, 12, 2))
sketch11.addConstraint(Sketcher.Constraint("Equal", 0, 4))
sketch11.addConstraint(Sketcher.Constraint("Equal", 1, 3))
sketch11.addConstraint(Sketcher.Constraint("Equal", 5, 6))
sketch11.addConstraint(Sketcher.Constraint("DistanceX", 3, 2, 7, 2, Q("0.1 in")))
sketch11.addConstraint(Sketcher.Constraint("DistanceY", 7, 2, 14, 2, Q("0.2 in")))
sketch11.addConstraint(Sketcher.Constraint("DistanceX", 7, 2, 15, 2, Q("0.05 in")))
sketch11.addConstraint(Sketcher.Constraint("DistanceY", 16, 2, 11, 2, Q("0.078125 in")))
sketch11.addConstraint(Sketcher.Constraint("DistanceX", 15, 2, 15, 1, 3.419231))
sketch11.addConstraint(Sketcher.Constraint("DistanceY", 1, 2, -1, 1, 16.075))
sketch11.addConstraint(Sketcher.Constraint("DistanceY", 5, 2, 11, 2, 2.118702))
sketch11.addConstraint(Sketcher.Constraint("DistanceX", 0, 2, 0, 1, 1.856154))
sketch11.addConstraint(Sketcher.Constraint("DistanceX", 2, 1, 2, 2, 1.050192))
sketch11.addConstraint(Sketcher.Constraint("DistanceX", 13, 1, 13, 2, 6.773333))
sketch11.addConstraint(Sketcher.Constraint("DistanceX", 0, 2, -1, 1, 7.03275))
sketch11.addConstraint(Sketcher.Constraint("DistanceY", 3, 2, 11, 2, 6.500609))
pocket6 = body.newObject("PartDesign::Pocket", "Pocket005")
pocket6.Profile = sketch11
pocket6.Length = Q("0.1 in")
pocket6.Reversed = True

doc.recompute()
